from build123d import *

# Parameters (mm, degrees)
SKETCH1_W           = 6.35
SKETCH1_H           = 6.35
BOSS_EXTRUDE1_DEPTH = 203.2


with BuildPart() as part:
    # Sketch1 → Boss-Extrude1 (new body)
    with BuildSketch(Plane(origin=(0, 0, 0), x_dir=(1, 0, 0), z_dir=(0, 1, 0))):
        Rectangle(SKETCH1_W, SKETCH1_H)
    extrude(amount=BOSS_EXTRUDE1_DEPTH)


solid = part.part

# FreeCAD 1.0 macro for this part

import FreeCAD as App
import Part
import Sketcher

V = App.Vector
Q = App.Units.Quantity

doc = App.newDocument("Part")
params = doc.addObject("Spreadsheet::Sheet", "Params")
for row, (alias, value) in enumerate([
    ("sketch1_width", "0.25 in"),
    ("pad1_length", "8 in"),
], start=1):
    params.set(f"A{row}", alias)
    params.set(f"B{row}", "=" + value)
    params.setAlias(f"B{row}", alias)

body = doc.addObject("PartDesign::Body", "Body")

sketch1 = doc.addObject("Sketcher::SketchObject", "Sketch")
body.addObject(sketch1)
sketch1.AttachmentSupport = (doc.XZ_Plane, [""])
sketch1.MapMode = "FlatFace"
sketch1.addGeometry(Part.LineSegment(V(-3, -3, 0), V(-3, 3, 0)), False)
sketch1.addGeometry(Part.LineSegment(V(-3, 3, 0), V(3, 3, 0)), False)
sketch1.addGeometry(Part.LineSegment(V(3, 3, 0), V(3, -3, 0)), False)
sketch1.addGeometry(Part.LineSegment(V(3, -3, 0), V(-3, -3, 0)), False)
sketch1.addConstraint(Sketcher.Constraint("Coincident", 0, 2, 1, 1))
sketch1.addConstraint(Sketcher.Constraint("Coincident", 1, 2, 2, 1))
sketch1.addConstraint(Sketcher.Constraint("Coincident", 2, 2, 3, 1))
sketch1.addConstraint(Sketcher.Constraint("Coincident", 3, 2, 0, 1))
sketch1.addConstraint(Sketcher.Constraint("Vertical", 0))
sketch1.addConstraint(Sketcher.Constraint("Horizontal", 1))
sketch1.addConstraint(Sketcher.Constraint("Vertical", 2))
sketch1.addConstraint(Sketcher.Constraint("Horizontal", 3))
sketch1.addConstraint(Sketcher.Constraint("Symmetric", 0, 2, 2, 2, -1, 1))
sketch1.addConstraint(Sketcher.Constraint("Equal", 3, 0))
sketch1.addConstraint(Sketcher.Constraint("DistanceX", 1, 1, 1, 2, Q("0.25 in")))
sketch1.setExpression("Constraints[10]", "Params.sketch1_width")
pad1 = doc.addObject("PartDesign::Pad", "Pad")
body.addObject(pad1)
pad1.Profile = sketch1
pad1.setExpression("Length", "Params.pad1_length")
pad1.Reversed = True

doc.recompute()
